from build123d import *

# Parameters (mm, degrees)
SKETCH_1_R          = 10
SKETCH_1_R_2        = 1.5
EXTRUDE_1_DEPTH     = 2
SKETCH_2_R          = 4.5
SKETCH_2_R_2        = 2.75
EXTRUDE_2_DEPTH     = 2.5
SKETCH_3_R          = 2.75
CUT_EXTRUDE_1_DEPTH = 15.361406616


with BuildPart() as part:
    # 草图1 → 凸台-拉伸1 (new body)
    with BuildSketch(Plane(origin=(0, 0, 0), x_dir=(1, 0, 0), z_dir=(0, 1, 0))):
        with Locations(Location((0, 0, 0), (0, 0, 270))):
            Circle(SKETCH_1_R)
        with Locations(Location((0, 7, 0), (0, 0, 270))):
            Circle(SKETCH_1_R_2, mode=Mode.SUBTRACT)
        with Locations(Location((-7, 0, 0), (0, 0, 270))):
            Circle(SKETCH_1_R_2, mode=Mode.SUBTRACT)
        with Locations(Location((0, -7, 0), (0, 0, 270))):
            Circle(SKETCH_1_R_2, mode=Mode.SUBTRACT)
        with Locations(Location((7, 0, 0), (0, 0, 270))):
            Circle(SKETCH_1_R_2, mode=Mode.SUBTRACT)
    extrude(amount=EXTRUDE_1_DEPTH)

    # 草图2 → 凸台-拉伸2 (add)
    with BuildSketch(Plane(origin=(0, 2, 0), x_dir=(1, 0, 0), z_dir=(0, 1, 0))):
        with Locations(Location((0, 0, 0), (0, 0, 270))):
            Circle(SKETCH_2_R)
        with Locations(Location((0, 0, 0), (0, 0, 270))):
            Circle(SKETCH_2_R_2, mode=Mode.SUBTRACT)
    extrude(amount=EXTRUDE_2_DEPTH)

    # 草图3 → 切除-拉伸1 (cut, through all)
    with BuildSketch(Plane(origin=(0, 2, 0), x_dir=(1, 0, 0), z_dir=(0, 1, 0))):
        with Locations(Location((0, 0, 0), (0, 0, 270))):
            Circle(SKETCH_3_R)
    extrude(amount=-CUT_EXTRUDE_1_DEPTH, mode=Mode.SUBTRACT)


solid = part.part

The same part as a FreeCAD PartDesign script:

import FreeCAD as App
import Part
import Sketcher
from FreeCAD import Vector
Q = App.Units.Quantity

doc = App.newDocument("Part")
body = doc.addObject("PartDesign::Body", "Body")

sketch1 = doc.addObject("Sketcher::SketchObject", "Sketch")
body.addObject(sketch1)
sketch1.AttachmentSupport = (doc.XZ_Plane, [""])
sketch1.MapMode = "FlatFace"
sketch1.addGeometry(Part.Circle(Vector(0, 0, 0), Vector(0, 0, 1), 10), False)
sketch1.addGeometry(Part.Circle(Vector(0, -7, 0), Vector(0, 0, 1), 1.5), False)
sketch1.addGeometry(Part.Circle(Vector(-7, 0, 0), Vector(0, 0, 1), 1.5), False)
sketch1.addGeometry(Part.Circle(Vector(7, 0, 0), Vector(0, 0, 1), 1.5), False)
sketch1.addGeometry(Part.Circle(Vector(0, 7, 0), Vector(0, 0, 1), 1.5), False)
sketch1.addConstraint(Sketcher.Constraint("Coincident", 0, 3, -1, 1))
sketch1.addConstraint(Sketcher.Constraint("Equal", 1, 2))
sketch1.addConstraint(Sketcher.Constraint("Equal", 2, 3))
sketch1.addConstraint(Sketcher.Constraint("Equal", 3, 4))
sketch1.addConstraint(Sketcher.Constraint("Symmetric", 2, 3, 3, 3, -1, 1))
sketch1.addConstraint(Sketcher.Constraint("Symmetric", 1, 3, 4, 3, -1, 1))
sketch1.addConstraint(Sketcher.Constraint("PointOnObject", 1, 3, -2))
sketch1.addConstraint(Sketcher.Constraint("PointOnObject", 2, 3, -1))
sketch1.addConstraint(Sketcher.Constraint("Diameter", 0, Q("20 mm")))
sketch1.addConstraint(Sketcher.Constraint("Diameter", 1, Q("3 mm")))
sketch1.addConstraint(Sketcher.Constraint("DistanceY", 1, 3, -1, 1, Q("7 mm")))
sketch1.addConstraint(Sketcher.Constraint("DistanceX", 2, 3, -1, 1, Q("7 mm")))
pad1 = doc.addObject("PartDesign::Pad", "Pad")
body.addObject(pad1)
pad1.Profile = sketch1
pad1.Length = 2
pad1.Reversed = True

sketch2 = doc.addObject("Sketcher::SketchObject", "Sketch001")
body.addObject(sketch2)
sketch2.AttachmentSupport = (doc.XZ_Plane, [""])
sketch2.MapMode = "FlatFace"
sketch2.AttachmentOffset = App.Placement(Vector(0, 0, -2), App.Rotation())
sketch2.addGeometry(Part.Circle(Vector(0, 0, 0), Vector(0, 0, 1), 4.5), False)
sketch2.addGeometry(Part.Circle(Vector(0, 0, 0), Vector(0, 0, 1), 2.8), False)
sketch2.addConstraint(Sketcher.Constraint("Coincident", 0, 3, -1, 1))
sketch2.addConstraint(Sketcher.Constraint("Coincident", 1, 3, -1, 1))
sketch2.addConstraint(Sketcher.Constraint("Diameter", 0, Q("9 mm")))
sketch2.addConstraint(Sketcher.Constraint("Diameter", 1, Q("5.5 mm")))
pad2 = doc.addObject("PartDesign::Pad", "Pad001")
body.addObject(pad2)
pad2.Profile = sketch2
pad2.Length = 2.5
pad2.Reversed = True

sketch3 = doc.addObject("Sketcher::SketchObject", "Sketch002")
body.addObject(sketch3)
sketch3.AttachmentSupport = (doc.XZ_Plane, [""])
sketch3.MapMode = "FlatFace"
sketch3.AttachmentOffset = App.Placement(Vector(0, 0, -2), App.Rotation())
sketch3.addGeometry(Part.Circle(Vector(0, 0, 0), Vector(0, 0, 1), 2.8), False)
sketch3.addConstraint(Sketcher.Constraint("Coincident", 0, 3, -1, 1))
sketch3.addConstraint(Sketcher.Constraint("Diameter", 0, Q("5.5 mm")))
pocket1 = doc.addObject("PartDesign::Pocket", "Pocket")
body.addObject(pocket1)
pocket1.Profile = sketch3
pocket1.Type = "ThroughAll"
pocket1.Reversed = True

doc.recompute()
